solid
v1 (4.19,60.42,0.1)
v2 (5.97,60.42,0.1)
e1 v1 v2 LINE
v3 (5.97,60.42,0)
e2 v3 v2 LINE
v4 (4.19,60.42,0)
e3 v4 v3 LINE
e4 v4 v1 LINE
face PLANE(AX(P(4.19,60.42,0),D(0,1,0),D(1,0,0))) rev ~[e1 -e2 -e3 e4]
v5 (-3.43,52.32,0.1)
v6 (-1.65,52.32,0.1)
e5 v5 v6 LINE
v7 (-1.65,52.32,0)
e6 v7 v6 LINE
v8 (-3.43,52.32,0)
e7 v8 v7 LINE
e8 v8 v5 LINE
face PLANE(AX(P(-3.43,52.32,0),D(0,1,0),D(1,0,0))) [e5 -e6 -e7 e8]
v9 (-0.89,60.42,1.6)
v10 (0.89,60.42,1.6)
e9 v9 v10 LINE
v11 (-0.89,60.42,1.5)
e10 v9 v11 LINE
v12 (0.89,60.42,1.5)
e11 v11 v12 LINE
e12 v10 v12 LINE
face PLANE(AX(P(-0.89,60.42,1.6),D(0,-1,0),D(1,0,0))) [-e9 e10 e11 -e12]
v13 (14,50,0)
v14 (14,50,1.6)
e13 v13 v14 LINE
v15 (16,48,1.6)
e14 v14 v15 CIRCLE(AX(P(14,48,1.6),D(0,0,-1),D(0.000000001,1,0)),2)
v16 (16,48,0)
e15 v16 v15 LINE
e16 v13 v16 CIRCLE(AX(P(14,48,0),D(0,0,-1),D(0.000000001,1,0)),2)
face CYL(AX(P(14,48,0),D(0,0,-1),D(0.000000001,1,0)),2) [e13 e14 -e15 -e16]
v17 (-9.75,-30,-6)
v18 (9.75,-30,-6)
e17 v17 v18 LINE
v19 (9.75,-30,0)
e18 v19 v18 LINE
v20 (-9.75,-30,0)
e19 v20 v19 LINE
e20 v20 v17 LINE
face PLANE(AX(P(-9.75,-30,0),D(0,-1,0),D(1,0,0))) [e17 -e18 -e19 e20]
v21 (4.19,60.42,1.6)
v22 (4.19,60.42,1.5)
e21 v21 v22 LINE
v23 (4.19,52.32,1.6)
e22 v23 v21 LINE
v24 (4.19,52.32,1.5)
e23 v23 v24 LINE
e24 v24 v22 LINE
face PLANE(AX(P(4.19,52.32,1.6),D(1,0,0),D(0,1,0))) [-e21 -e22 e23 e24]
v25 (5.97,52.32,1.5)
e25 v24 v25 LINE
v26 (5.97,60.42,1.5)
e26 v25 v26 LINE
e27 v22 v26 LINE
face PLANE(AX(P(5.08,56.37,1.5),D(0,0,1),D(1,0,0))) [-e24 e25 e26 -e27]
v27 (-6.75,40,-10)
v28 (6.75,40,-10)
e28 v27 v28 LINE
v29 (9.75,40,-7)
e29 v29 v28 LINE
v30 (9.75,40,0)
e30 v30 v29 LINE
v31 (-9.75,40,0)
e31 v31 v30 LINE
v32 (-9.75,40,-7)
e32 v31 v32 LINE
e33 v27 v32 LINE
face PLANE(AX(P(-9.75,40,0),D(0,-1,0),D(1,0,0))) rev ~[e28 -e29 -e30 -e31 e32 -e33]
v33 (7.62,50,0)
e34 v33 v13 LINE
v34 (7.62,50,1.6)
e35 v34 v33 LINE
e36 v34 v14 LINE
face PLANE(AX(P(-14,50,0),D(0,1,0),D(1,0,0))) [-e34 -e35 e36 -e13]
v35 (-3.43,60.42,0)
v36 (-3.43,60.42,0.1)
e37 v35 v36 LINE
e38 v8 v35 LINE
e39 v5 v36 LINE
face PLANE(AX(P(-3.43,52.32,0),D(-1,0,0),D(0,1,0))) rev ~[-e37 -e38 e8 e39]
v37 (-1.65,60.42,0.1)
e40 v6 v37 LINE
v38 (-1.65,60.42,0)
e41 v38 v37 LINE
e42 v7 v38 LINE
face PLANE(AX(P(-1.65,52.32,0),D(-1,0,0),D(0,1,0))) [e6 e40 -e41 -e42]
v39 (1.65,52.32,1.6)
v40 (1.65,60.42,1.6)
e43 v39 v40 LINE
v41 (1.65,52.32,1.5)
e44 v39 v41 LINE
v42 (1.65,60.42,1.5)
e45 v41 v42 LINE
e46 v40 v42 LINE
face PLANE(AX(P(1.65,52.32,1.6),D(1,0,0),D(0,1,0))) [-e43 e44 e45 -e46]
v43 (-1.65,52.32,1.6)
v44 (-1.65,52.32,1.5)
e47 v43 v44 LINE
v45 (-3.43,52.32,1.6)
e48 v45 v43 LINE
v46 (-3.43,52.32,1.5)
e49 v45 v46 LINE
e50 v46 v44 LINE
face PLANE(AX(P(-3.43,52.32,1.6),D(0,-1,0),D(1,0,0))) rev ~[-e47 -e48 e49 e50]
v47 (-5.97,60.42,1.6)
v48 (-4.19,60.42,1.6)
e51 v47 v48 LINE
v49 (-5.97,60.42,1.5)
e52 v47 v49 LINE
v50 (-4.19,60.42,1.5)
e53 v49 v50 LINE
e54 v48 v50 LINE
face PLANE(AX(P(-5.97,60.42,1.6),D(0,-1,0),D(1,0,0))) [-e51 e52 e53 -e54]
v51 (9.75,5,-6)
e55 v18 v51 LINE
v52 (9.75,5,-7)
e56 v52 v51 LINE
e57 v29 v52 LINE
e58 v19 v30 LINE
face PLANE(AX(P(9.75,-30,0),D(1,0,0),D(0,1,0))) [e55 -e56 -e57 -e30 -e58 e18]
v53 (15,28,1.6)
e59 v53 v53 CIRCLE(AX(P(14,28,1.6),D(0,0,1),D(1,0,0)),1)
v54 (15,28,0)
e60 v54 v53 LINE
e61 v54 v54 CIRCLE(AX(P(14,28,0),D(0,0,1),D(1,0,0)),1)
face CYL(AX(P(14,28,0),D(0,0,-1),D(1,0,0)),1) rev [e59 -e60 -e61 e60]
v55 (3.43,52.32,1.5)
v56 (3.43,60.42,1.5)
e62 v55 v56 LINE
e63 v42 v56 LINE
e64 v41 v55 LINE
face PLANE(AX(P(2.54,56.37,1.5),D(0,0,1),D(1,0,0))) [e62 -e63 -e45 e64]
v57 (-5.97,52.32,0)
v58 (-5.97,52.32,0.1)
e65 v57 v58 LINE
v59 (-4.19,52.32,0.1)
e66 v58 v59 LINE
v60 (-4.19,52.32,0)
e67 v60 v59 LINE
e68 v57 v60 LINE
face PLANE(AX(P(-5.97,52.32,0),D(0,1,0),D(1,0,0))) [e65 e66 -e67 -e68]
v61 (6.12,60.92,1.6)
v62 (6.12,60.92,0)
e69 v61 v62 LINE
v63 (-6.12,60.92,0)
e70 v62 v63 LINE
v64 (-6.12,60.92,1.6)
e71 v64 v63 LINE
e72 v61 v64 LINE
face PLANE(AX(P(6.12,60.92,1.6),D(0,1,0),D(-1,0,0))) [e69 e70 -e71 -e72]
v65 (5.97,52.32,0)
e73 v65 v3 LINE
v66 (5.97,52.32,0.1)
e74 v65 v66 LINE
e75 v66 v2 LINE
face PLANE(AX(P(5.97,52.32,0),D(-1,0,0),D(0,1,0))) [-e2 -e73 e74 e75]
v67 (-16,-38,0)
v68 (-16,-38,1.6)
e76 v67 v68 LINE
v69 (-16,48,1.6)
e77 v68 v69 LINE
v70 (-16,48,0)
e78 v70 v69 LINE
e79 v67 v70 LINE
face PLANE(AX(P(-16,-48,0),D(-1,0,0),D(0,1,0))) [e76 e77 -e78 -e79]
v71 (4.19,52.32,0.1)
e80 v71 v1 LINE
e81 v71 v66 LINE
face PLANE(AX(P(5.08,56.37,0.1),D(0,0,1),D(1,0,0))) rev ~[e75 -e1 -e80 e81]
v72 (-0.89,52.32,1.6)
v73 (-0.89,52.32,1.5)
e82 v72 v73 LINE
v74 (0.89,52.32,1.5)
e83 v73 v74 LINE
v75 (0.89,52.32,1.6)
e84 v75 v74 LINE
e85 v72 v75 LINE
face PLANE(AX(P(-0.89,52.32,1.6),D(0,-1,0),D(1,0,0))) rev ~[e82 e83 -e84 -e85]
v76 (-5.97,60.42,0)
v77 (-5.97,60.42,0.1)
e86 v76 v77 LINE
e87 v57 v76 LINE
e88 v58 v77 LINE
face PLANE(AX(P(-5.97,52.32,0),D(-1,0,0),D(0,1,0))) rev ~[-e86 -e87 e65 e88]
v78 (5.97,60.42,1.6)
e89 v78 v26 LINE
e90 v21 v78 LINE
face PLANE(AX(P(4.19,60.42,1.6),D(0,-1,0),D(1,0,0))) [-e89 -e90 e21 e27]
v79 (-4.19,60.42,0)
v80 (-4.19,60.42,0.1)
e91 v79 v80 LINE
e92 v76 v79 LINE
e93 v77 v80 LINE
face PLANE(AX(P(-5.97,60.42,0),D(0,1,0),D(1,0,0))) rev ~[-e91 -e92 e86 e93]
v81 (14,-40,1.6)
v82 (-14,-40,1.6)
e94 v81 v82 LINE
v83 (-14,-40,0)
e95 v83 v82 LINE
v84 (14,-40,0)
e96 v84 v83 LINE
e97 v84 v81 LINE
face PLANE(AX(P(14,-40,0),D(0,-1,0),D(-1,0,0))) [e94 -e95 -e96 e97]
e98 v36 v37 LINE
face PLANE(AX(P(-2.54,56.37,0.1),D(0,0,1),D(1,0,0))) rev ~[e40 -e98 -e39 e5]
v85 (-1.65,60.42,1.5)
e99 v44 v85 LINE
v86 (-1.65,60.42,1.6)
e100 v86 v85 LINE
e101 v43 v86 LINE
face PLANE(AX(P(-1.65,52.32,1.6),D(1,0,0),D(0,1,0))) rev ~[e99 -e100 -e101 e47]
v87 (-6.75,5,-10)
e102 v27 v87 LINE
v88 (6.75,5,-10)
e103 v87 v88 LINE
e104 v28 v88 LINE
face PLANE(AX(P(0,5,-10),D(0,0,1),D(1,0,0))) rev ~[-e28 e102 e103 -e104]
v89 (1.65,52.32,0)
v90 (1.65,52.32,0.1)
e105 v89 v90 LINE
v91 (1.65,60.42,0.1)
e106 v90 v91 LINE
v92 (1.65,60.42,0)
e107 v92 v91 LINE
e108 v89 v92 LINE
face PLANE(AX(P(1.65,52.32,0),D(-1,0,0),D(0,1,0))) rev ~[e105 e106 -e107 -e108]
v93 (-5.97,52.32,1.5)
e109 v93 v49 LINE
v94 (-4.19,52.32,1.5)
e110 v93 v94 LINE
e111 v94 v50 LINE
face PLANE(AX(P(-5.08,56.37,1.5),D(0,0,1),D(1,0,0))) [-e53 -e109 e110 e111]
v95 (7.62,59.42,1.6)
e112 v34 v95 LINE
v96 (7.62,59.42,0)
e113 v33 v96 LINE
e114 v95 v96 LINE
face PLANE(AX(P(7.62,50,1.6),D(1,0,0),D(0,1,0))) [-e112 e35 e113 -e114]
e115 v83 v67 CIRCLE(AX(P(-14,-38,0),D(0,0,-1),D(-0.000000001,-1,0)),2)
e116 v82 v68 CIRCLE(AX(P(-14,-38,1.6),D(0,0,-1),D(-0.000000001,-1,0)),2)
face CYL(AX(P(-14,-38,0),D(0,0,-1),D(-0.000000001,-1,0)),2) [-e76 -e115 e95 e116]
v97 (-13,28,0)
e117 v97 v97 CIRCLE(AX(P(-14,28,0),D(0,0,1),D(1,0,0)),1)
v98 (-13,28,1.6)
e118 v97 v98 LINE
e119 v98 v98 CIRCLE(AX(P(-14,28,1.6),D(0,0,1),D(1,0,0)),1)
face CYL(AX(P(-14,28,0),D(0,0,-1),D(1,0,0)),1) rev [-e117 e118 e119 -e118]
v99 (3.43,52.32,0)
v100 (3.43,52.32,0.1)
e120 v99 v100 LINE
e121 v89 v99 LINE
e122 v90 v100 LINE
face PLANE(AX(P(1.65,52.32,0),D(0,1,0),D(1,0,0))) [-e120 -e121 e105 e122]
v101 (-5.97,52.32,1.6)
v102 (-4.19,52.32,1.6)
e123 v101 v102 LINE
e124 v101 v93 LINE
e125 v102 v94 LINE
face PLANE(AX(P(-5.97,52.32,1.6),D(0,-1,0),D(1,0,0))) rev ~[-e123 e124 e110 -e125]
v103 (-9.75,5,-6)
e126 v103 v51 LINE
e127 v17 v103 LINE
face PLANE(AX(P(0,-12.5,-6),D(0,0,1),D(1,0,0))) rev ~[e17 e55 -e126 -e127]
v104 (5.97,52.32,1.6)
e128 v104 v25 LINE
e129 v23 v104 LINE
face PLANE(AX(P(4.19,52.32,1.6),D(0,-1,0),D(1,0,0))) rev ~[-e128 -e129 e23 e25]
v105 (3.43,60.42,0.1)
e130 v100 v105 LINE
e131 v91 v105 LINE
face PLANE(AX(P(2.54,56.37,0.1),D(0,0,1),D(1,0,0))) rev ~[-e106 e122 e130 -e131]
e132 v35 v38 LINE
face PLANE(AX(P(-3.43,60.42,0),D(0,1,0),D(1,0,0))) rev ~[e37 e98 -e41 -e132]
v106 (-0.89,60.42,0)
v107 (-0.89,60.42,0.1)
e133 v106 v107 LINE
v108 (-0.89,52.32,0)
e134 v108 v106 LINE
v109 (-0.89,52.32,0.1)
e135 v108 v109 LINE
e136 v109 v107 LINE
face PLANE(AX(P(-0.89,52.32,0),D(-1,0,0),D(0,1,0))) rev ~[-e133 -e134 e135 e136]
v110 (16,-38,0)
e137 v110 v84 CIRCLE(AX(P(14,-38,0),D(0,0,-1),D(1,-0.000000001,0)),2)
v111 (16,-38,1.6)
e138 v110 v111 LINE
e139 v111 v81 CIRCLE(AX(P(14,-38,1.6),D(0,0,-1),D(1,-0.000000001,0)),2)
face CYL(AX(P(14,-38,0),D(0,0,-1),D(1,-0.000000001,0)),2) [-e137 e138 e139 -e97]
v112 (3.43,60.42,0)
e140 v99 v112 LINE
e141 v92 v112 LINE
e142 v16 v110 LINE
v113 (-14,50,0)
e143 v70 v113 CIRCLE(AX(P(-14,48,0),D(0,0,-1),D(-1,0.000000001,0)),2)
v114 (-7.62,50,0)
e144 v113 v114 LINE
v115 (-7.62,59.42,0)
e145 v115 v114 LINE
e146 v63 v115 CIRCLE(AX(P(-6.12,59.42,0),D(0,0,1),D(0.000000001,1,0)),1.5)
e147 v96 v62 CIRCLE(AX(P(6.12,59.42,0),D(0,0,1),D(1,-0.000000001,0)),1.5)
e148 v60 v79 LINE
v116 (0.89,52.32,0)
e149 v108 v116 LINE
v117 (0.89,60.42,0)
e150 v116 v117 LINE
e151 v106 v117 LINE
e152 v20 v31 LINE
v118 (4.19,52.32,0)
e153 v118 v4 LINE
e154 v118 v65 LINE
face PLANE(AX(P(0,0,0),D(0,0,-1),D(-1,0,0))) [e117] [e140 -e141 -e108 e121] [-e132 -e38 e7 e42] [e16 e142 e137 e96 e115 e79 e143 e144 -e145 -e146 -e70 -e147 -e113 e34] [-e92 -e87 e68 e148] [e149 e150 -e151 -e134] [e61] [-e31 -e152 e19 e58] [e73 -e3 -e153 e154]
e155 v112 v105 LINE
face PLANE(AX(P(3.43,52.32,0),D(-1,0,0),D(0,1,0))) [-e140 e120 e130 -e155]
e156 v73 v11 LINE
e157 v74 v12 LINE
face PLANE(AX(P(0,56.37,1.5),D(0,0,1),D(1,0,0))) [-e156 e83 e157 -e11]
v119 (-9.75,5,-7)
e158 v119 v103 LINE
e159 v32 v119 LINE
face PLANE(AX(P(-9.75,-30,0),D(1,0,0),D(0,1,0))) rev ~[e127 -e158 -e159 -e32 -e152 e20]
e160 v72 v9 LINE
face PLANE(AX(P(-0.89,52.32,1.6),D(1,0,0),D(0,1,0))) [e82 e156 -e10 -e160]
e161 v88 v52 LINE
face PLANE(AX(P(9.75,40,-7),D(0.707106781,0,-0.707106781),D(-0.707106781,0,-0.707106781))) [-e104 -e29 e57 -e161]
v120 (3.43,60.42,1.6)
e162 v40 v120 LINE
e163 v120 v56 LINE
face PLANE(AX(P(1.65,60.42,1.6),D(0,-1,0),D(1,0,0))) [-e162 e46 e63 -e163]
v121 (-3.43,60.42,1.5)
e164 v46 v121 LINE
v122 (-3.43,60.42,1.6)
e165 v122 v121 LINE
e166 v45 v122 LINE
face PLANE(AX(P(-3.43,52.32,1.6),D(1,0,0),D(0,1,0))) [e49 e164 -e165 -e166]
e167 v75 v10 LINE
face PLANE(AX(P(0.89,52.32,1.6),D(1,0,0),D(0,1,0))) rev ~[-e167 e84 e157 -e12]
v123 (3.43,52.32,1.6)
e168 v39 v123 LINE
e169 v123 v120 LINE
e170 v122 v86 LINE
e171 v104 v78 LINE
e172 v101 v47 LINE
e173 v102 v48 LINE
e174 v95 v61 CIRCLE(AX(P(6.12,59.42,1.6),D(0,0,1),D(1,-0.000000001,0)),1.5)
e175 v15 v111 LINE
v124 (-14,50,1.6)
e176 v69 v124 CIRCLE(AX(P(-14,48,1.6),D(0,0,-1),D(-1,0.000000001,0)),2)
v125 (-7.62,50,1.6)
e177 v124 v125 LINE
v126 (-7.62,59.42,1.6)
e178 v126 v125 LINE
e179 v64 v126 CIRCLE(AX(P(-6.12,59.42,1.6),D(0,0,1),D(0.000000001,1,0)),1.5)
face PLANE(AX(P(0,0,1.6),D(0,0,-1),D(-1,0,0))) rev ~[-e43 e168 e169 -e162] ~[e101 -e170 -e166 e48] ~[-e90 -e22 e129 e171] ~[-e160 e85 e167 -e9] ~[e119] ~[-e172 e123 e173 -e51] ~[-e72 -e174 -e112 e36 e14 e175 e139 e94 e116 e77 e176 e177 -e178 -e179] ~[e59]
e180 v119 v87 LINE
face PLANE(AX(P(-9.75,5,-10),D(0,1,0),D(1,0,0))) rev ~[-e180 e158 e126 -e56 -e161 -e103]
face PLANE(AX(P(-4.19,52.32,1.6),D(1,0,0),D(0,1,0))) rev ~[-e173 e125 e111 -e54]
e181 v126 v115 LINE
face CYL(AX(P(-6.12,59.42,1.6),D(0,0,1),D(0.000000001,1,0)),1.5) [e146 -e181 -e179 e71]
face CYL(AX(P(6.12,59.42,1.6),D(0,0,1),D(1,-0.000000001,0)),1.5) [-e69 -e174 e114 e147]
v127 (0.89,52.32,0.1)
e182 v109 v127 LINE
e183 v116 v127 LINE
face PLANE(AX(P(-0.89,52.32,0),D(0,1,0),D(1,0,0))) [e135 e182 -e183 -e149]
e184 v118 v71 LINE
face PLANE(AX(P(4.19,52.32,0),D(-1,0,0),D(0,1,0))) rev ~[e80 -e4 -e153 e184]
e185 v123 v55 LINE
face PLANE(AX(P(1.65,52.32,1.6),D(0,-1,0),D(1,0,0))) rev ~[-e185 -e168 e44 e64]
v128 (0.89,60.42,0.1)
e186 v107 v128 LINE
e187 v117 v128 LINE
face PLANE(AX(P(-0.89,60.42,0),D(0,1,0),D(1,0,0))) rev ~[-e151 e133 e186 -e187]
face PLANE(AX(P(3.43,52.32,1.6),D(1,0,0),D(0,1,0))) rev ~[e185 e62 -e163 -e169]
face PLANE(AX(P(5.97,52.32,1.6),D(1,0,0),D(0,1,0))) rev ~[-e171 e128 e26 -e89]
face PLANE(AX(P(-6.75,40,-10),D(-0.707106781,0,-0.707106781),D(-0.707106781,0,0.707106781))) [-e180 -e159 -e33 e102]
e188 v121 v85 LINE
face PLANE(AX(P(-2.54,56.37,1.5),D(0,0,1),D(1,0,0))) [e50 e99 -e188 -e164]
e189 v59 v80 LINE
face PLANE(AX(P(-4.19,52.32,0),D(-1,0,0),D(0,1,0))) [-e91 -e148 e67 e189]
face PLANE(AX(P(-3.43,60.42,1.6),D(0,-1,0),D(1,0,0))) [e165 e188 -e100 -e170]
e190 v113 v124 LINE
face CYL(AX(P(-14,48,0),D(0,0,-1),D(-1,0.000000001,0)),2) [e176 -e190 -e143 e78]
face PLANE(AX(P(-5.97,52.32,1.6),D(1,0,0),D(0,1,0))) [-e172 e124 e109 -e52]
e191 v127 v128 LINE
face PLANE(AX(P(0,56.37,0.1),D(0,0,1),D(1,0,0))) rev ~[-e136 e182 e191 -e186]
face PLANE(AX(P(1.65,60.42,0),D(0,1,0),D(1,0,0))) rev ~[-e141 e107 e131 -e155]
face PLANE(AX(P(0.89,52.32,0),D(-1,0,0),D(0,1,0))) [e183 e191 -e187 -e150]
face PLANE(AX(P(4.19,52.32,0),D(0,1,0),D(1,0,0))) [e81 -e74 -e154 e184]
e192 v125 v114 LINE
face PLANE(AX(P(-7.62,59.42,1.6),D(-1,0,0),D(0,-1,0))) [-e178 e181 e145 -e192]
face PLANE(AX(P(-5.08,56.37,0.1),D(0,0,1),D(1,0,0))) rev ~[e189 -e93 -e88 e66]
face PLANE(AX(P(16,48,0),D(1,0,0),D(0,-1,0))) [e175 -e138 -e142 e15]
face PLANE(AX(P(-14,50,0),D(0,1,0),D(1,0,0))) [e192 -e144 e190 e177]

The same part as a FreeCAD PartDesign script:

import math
import FreeCAD as App
import Part
import Sketcher

V = App.Vector
Q = App.Units.Quantity

doc = App.newDocument("Part")
body = doc.addObject("PartDesign::Body", "Body")

# Sketch on XY plane
sketch1 = body.newObject("Sketcher::SketchObject", "Sketch")
sketch1.AttachmentSupport = (doc.getObject("XY_Plane"), [""])
sketch1.MapMode = "FlatFace"
sketch1.addGeometry([
    Part.LineSegment(V(14, 50, 0), V(-14, 50, 0)),  # 0
    Part.ArcOfCircle(Part.Circle(V(-14, 48, 0), V(0, 0, 1), 2), math.radians(90), math.radians(180)),  # 1
    Part.LineSegment(V(-16, 48, 0), V(-16, -48, 0)),  # 2
    Part.ArcOfCircle(Part.Circle(V(-14, -48, 0), V(0, 0, 1), 2), math.radians(-180), math.radians(-90)),  # 3
    Part.LineSegment(V(-14, -50, 0), V(14, -50, 0)),  # 4
    Part.ArcOfCircle(Part.Circle(V(14, -48, 0), V(0, 0, 1), 2), math.radians(-90), math.radians(0)),  # 5
    Part.LineSegment(V(16, -48, 0), V(16, 48, 0)),  # 6
    Part.ArcOfCircle(Part.Circle(V(14, 48, 0), V(0, 0, 1), 2), math.radians(0), math.radians(90)),  # 7
    Part.Circle(V(14, -48, 0), V(0, 0, 1), 1),  # 8
    Part.Circle(V(-14, -48, 0), V(0, 0, 1), 1),  # 9
], False)
sketch1.addConstraint([
    Sketcher.Constraint("Tangent", 0, 2, 1, 1),
    Sketcher.Constraint("Tangent", 1, 2, 2, 1),
    Sketcher.Constraint("Tangent", 2, 2, 3, 1),
    Sketcher.Constraint("Tangent", 3, 2, 4, 1),
    Sketcher.Constraint("Tangent", 4, 2, 5, 1),
    Sketcher.Constraint("Tangent", 5, 2, 6, 1),
    Sketcher.Constraint("Tangent", 6, 2, 7, 1),
    Sketcher.Constraint("Tangent", 7, 2, 0, 1),
    Sketcher.Constraint("Horizontal", 0),
    Sketcher.Constraint("Vertical", 2),
    Sketcher.Constraint("Horizontal", 4),
    Sketcher.Constraint("Vertical", 6),
    Sketcher.Constraint("Coincident", 8, 3, 5, 3),
    Sketcher.Constraint("Coincident", 9, 3, 3, 3),
    Sketcher.Constraint("Equal", 1, 3),
    Sketcher.Constraint("Equal", 3, 5),
    Sketcher.Constraint("Equal", 5, 7),
    Sketcher.Constraint("Equal", 8, 9),
    Sketcher.Constraint("Symmetric", 1, 3, 5, 3, -1, 1),
    Sketcher.Constraint("Diameter", 8, Q("2 mm")),
    Sketcher.Constraint("Radius", 1, Q("2 mm")),
    Sketcher.Constraint("DistanceX", 0, 2, 0, 1, Q("28 mm")),
    Sketcher.Constraint("DistanceY", 2, 2, 2, 1, Q("96 mm")),
])
pad1 = body.newObject("PartDesign::Pad", "Pad")
pad1.Profile = sketch1
pad1.Length = 1.6

# Sketch on XY plane
sketch2 = body.newObject("Sketcher::SketchObject", "Sketch001")
sketch2.AttachmentSupport = (doc.getObject("XY_Plane"), [""])
sketch2.MapMode = "FlatFace"
sketch2.addGeometry([
    Part.Circle(V(-14, 28, 0), V(0, 0, 1), 1),
    Part.Circle(V(14, 28, 0), V(0, 0, 1), 1),
], False)
sketch2.addConstraint([
    Sketcher.Constraint("Equal", 0, 1),
    Sketcher.Constraint("Symmetric", 0, 3, 1, 3, -2),
    Sketcher.Constraint("Diameter", 0, Q("2 mm")),
    Sketcher.Constraint("DistanceX", 0, 3, -1, 1, Q("14 mm")),
    Sketcher.Constraint("DistanceY", -1, 1, 0, 3, Q("28 mm")),
])
pocket1 = body.newObject("PartDesign::Pocket", "Pocket")
pocket1.Profile = sketch2
pocket1.Length = 1.6
pocket1.Reversed = True

# Sketch on XY plane
sketch3 = body.newObject("Sketcher::SketchObject", "Sketch002")
sketch3.AttachmentSupport = (doc.getObject("XY_Plane"), [""])
sketch3.MapMode = "FlatFace"
sketch3.AttachmentOffset = App.Placement(V(0, 0, 1.6), App.Rotation())
sketch3.addGeometry([
    Part.LineSegment(V(-7.62, 50, 0), V(7.62, 50, 0)),  # 0
    Part.LineSegment(V(7.62, 50, 0), V(7.62, 59.42, 0)),  # 1
    Part.ArcOfCircle(Part.Circle(V(6.12, 59.42, 0), V(0, 0, 1), 1.5), math.radians(0), math.radians(90)),  # 2
    Part.LineSegment(V(6.12, 60.92, 0), V(-6.12, 60.92, 0)),  # 3
    Part.ArcOfCircle(Part.Circle(V(-6.12, 59.42, 0), V(0, 0, 1), 1.5), math.radians(90), math.radians(180)),  # 4
    Part.LineSegment(V(-7.62, 59.42, 0), V(-7.62, 50, 0)),  # 5
    Part.LineSegment(V(-7.62, -50, 0), V(-7.62, -59.42, 0)),  # 6
    Part.ArcOfCircle(Part.Circle(V(-6.12, -59.42, 0), V(0, 0, 1), 1.5), math.radians(180), math.radians(270)),  # 7
    Part.LineSegment(V(-6.12, -60.92, 0), V(6.12, -60.92, 0)),  # 8
    Part.ArcOfCircle(Part.Circle(V(6.12, -59.42, 0), V(0, 0, 1), 1.5), math.radians(-90), math.radians(0)),  # 9
    Part.LineSegment(V(7.62, -59.42, 0), V(7.62, -50, 0)),  # 10
    Part.LineSegment(V(7.62, -50, 0), V(-7.62, -50, 0)),  # 11
], False)
sketch3.addConstraint([
    Sketcher.Constraint("Coincident", 0, 2, 1, 1),
    Sketcher.Constraint("Tangent", 1, 2, 2, 1),
    Sketcher.Constraint("Tangent", 2, 2, 3, 1),
    Sketcher.Constraint("Tangent", 3, 2, 4, 1),
    Sketcher.Constraint("Tangent", 4, 2, 5, 1),
    Sketcher.Constraint("Coincident", 5, 2, 0, 1),
    Sketcher.Constraint("Tangent", 6, 2, 7, 1),
    Sketcher.Constraint("Tangent", 7, 2, 8, 1),
    Sketcher.Constraint("Tangent", 8, 2, 9, 1),
    Sketcher.Constraint("Tangent", 9, 2, 10, 1),
    Sketcher.Constraint("Coincident", 10, 2, 11, 1),
    Sketcher.Constraint("Coincident", 11, 2, 6, 1),
    Sketcher.Constraint("Horizontal", 0),
    Sketcher.Constraint("Vertical", 1),
    Sketcher.Constraint("Horizontal", 3),
    Sketcher.Constraint("Vertical", 5),
    Sketcher.Constraint("Vertical", 6),
    Sketcher.Constraint("Horizontal", 8),
    Sketcher.Constraint("Vertical", 10),
    Sketcher.Constraint("Horizontal", 11),
    Sketcher.Constraint("Equal", 2, 4),
    Sketcher.Constraint("Equal", 4, 7),
    Sketcher.Constraint("Equal", 7, 9),
    Sketcher.Constraint("Symmetric", 2, 3, 7, 3, -1, 1),
    Sketcher.Constraint("Symmetric", 5, 2, 10, 2, -1, 1),
    Sketcher.Constraint("Vertical", 4, 3, 7, 3),
    Sketcher.Constraint("Radius", 2, Q("1.5 mm")),
    Sketcher.Constraint("DistanceY", -1, 1, 0, 2, Q("50 mm")),
    Sketcher.Constraint("DistanceX", 0, 1, 0, 2, Q("15.24 mm")),
    Sketcher.Constraint("DistanceY", 1, 1, 1, 2, Q("9.42 mm")),
])
pad2 = body.newObject("PartDesign::Pad", "Pad001")
pad2.Profile = sketch3
pad2.Length = 1.6
pad2.Reversed = True

# Sketch on XY plane
sketch4 = body.newObject("Sketcher::SketchObject", "Sketch003")
sketch4.AttachmentSupport = (doc.getObject("XY_Plane"), [""])
sketch4.MapMode = "FlatFace"
sketch4.addGeometry([
    Part.LineSegment(V(-0.89, 60.42, 0), V(-0.89, 52.32, 0)),  # 0
    Part.LineSegment(V(-0.89, 52.32, 0), V(0.89, 52.32, 0)),  # 1
    Part.LineSegment(V(0.89, 52.32, 0), V(0.89, 60.42, 0)),  # 2
    Part.LineSegment(V(0.89, 60.42, 0), V(-0.89, 60.42, 0)),  # 3
    Part.LineSegment(V(1.65, 60.42, 0), V(1.65, 52.32, 0)),  # 4
    Part.LineSegment(V(1.65, 52.32, 0), V(3.43, 52.32, 0)),  # 5
    Part.LineSegment(V(3.43, 52.32, 0), V(3.43, 60.42, 0)),  # 6
    Part.LineSegment(V(3.43, 60.42, 0), V(1.65, 60.42, 0)),  # 7
    Part.LineSegment(V(4.19, 60.42, 0), V(4.19, 52.32, 0)),  # 8
    Part.LineSegment(V(4.19, 52.32, 0), V(5.97, 52.32, 0)),  # 9
    Part.LineSegment(V(5.97, 52.32, 0), V(5.97, 60.42, 0)),  # 10
    Part.LineSegment(V(5.97, 60.42, 0), V(4.19, 60.42, 0)),  # 11
    Part.LineSegment(V(-3.43, 60.42, 0), V(-3.43, 52.32, 0)),  # 12
    Part.LineSegment(V(-3.43, 52.32, 0), V(-1.65, 52.32, 0)),  # 13
    Part.LineSegment(V(-1.65, 52.32, 0), V(-1.65, 60.42, 0)),  # 14
    Part.LineSegment(V(-1.65, 60.42, 0), V(-3.43, 60.42, 0)),  # 15
    Part.LineSegment(V(-5.97, 60.42, 0), V(-5.97, 52.32, 0)),  # 16
    Part.LineSegment(V(-5.97, 52.32, 0), V(-4.19, 52.32, 0)),  # 17
    Part.LineSegment(V(-4.19, 52.32, 0), V(-4.19, 60.42, 0)),  # 18
    Part.LineSegment(V(-4.19, 60.42, 0), V(-5.97, 60.42, 0)),  # 19
    Part.LineSegment(V(-5.97, -52.32, 0), V(-5.97, -60.42, 0)),  # 20
    Part.LineSegment(V(-5.97, -60.42, 0), V(-4.19, -60.42, 0)),  # 21
    Part.LineSegment(V(-4.19, -60.42, 0), V(-4.19, -52.32, 0)),  # 22
    Part.LineSegment(V(-4.19, -52.32, 0), V(-5.97, -52.32, 0)),  # 23
    Part.LineSegment(V(-3.43, -52.32, 0), V(-3.43, -60.42, 0)),  # 24
    Part.LineSegment(V(-3.43, -60.42, 0), V(-1.65, -60.42, 0)),  # 25
    Part.LineSegment(V(-1.65, -60.42, 0), V(-1.65, -52.32, 0)),  # 26
    Part.LineSegment(V(-1.65, -52.32, 0), V(-3.43, -52.32, 0)),  # 27
    Part.LineSegment(V(4.19, -52.32, 0), V(4.19, -60.42, 0)),  # 28
    Part.LineSegment(V(4.19, -60.42, 0), V(5.97, -60.42, 0)),  # 29
    Part.LineSegment(V(5.97, -60.42, 0), V(5.97, -52.32, 0)),  # 30
    Part.LineSegment(V(5.97, -52.32, 0), V(4.19, -52.32, 0)),  # 31
    Part.LineSegment(V(1.65, -52.32, 0), V(1.65, -60.42, 0)),  # 32
    Part.LineSegment(V(1.65, -60.42, 0), V(3.43, -60.42, 0)),  # 33
    Part.LineSegment(V(3.43, -60.42, 0), V(3.43, -52.32, 0)),  # 34
    Part.LineSegment(V(3.43, -52.32, 0), V(1.65, -52.32, 0)),  # 35
    Part.LineSegment(V(-0.89, -52.32, 0), V(-0.89, -60.42, 0)),  # 36
    Part.LineSegment(V(-0.89, -60.42, 0), V(0.89, -60.42, 0)),  # 37
    Part.LineSegment(V(0.89, -60.42, 0), V(0.89, -52.32, 0)),  # 38
    Part.LineSegment(V(0.89, -52.32, 0), V(-0.89, -52.32, 0)),  # 39
], False)
sketch4.addConstraint([
    Sketcher.Constraint("Coincident", 0, 2, 1, 1),
    Sketcher.Constraint("Coincident", 1, 2, 2, 1),
    Sketcher.Constraint("Coincident", 2, 2, 3, 1),
    Sketcher.Constraint("Coincident", 3, 2, 0, 1),
    Sketcher.Constraint("Coincident", 4, 2, 5, 1),
    Sketcher.Constraint("Coincident", 5, 2, 6, 1),
    Sketcher.Constraint("Coincident", 6, 2, 7, 1),
    Sketcher.Constraint("Coincident", 7, 2, 4, 1),
    Sketcher.Constraint("Coincident", 8, 2, 9, 1),
    Sketcher.Constraint("Coincident", 9, 2, 10, 1),
    Sketcher.Constraint("Coincident", 10, 2, 11, 1),
    Sketcher.Constraint("Coincident", 11, 2, 8, 1),
    Sketcher.Constraint("Coincident", 12, 2, 13, 1),
    Sketcher.Constraint("Coincident", 13, 2, 14, 1),
    Sketcher.Constraint("Coincident", 14, 2, 15, 1),
    Sketcher.Constraint("Coincident", 15, 2, 12, 1),
    Sketcher.Constraint("Coincident", 16, 2, 17, 1),
    Sketcher.Constraint("Coincident", 17, 2, 18, 1),
    Sketcher.Constraint("Coincident", 18, 2, 19, 1),
    Sketcher.Constraint("Coincident", 19, 2, 16, 1),
    Sketcher.Constraint("Coincident", 20, 2, 21, 1),
    Sketcher.Constraint("Coincident", 21, 2, 22, 1),
    Sketcher.Constraint("Coincident", 22, 2, 23, 1),
    Sketcher.Constraint("Coincident", 23, 2, 20, 1),
    Sketcher.Constraint("Coincident", 24, 2, 25, 1),
    Sketcher.Constraint("Coincident", 25, 2, 26, 1),
    Sketcher.Constraint("Coincident", 26, 2, 27, 1),
    Sketcher.Constraint("Coincident", 27, 2, 24, 1),
    Sketcher.Constraint("Coincident", 28, 2, 29, 1),
    Sketcher.Constraint("Coincident", 29, 2, 30, 1),
    Sketcher.Constraint("Coincident", 30, 2, 31, 1),
    Sketcher.Constraint("Coincident", 31, 2, 28, 1),
    Sketcher.Constraint("Coincident", 32, 2, 33, 1),
    Sketcher.Constraint("Coincident", 33, 2, 34, 1),
    Sketcher.Constraint("Coincident", 34, 2, 35, 1),
    Sketcher.Constraint("Coincident", 35, 2, 32, 1),
    Sketcher.Constraint("Coincident", 36, 2, 37, 1),
    Sketcher.Constraint("Coincident", 37, 2, 38, 1),
    Sketcher.Constraint("Coincident", 38, 2, 39, 1),
    Sketcher.Constraint("Coincident", 39, 2, 36, 1),
    Sketcher.Constraint("Vertical", 0),
    Sketcher.Constraint("Horizontal", 1),
    Sketcher.Constraint("Vertical", 2),
    Sketcher.Constraint("Horizontal", 3),
    Sketcher.Constraint("Vertical", 4),
    Sketcher.Constraint("Horizontal", 5),
    Sketcher.Constraint("Vertical", 6),
    Sketcher.Constraint("Horizontal", 7),
    Sketcher.Constraint("Vertical", 8),
    Sketcher.Constraint("Horizontal", 9),
    Sketcher.Constraint("Vertical", 10),
    Sketcher.Constraint("Horizontal", 11),
    Sketcher.Constraint("Vertical", 12),
    Sketcher.Constraint("Horizontal", 13),
    Sketcher.Constraint("Vertical", 14),
    Sketcher.Constraint("Horizontal", 15),
    Sketcher.Constraint("Vertical", 16),
    Sketcher.Constraint("Horizontal", 17),
    Sketcher.Constraint("Vertical", 18),
    Sketcher.Constraint("Horizontal", 19),
    Sketcher.Constraint("Vertical", 20),
    Sketcher.Constraint("Horizontal", 21),
    Sketcher.Constraint("Vertical", 22),
    Sketcher.Constraint("Horizontal", 23),
    Sketcher.Constraint("Vertical", 24),
    Sketcher.Constraint("Horizontal", 25),
    Sketcher.Constraint("Vertical", 26),
    Sketcher.Constraint("Horizontal", 27),
    Sketcher.Constraint("Vertical", 28),
    Sketcher.Constraint("Horizontal", 29),
    Sketcher.Constraint("Vertical", 30),
    Sketcher.Constraint("Horizontal", 31),
    Sketcher.Constraint("Vertical", 32),
    Sketcher.Constraint("Horizontal", 33),
    Sketcher.Constraint("Vertical", 34),
    Sketcher.Constraint("Horizontal", 35),
    Sketcher.Constraint("Vertical", 36),
    Sketcher.Constraint("Horizontal", 37),
    Sketcher.Constraint("Vertical", 38),
    Sketcher.Constraint("Horizontal", 39),
    Sketcher.Constraint("Symmetric", 10, 2, 20, 2, -1, 1),
    Sketcher.Constraint("Symmetric", 8, 2, 22, 2, -1, 1),
    Sketcher.Constraint("Symmetric", 6, 2, 24, 2, -1, 1),
    Sketcher.Constraint("Symmetric", 4, 2, 26, 2, -1, 1),
    Sketcher.Constraint("Symmetric", 18, 2, 28, 2, -1, 1),
    Sketcher.Constraint("Symmetric", 16, 2, 30, 2, -1, 1),
    Sketcher.Constraint("Symmetric", 14, 2, 32, 2, -1, 1),
    Sketcher.Constraint("Symmetric", 12, 2, 34, 2, -1, 1),
    Sketcher.Constraint("Symmetric", 2, 2, 36, 2, -1, 1),
    Sketcher.Constraint("Symmetric", 0, 2, 38, 2, -1, 1),
    Sketcher.Constraint("Symmetric", 5, 2, 12, 2, -2),
    Sketcher.Constraint("Symmetric", 7, 2, 14, 2, -2),
    Sketcher.Constraint("Symmetric", 9, 2, 16, 2, -2),
    Sketcher.Constraint("Symmetric", 11, 2, 18, 2, -2),
    Sketcher.Constraint("Horizontal", 1, 2, 4, 2),
    Sketcher.Constraint("Horizontal", 3, 2, 6, 2),
    Sketcher.Constraint("Horizontal", 5, 2, 8, 2),
    Sketcher.Constraint("Horizontal", 7, 2, 10, 2),
    Sketcher.Constraint("Vertical", 3, 2, 36, 2),
    Sketcher.Constraint("Equal", 3, 5),
    Sketcher.Constraint("Equal", 7, 9),
    Sketcher.Constraint("DistanceY", 0, 2, 0, 1, Q("8.1 mm")),
    Sketcher.Constraint("DistanceX", 1, 1, 1, 2, Q("1.78 mm")),
    Sketcher.Constraint("DistanceX", 1, 2, 8, 2, Q("3.3 mm")),
    Sketcher.Constraint("DistanceX", 13, 2, 4, 2, Q("3.3 mm")),
    Sketcher.Constraint("DistanceY", -1, 1, 0, 2, Q("52.32 mm")),
])
pocket2 = body.newObject("PartDesign::Pocket", "Pocket001")
pocket2.Profile = sketch4
pocket2.Length = 0.1
pocket2.Reversed = True

# Sketch on XY plane
sketch5 = body.newObject("Sketcher::SketchObject", "Sketch004")
sketch5.AttachmentSupport = (doc.getObject("XY_Plane"), [""])
sketch5.MapMode = "FlatFace"
sketch5.AttachmentOffset = App.Placement(V(0, 0, 1.6), App.Rotation())
sketch5.addGeometry([
    Part.LineSegment(V(1.65, 60.42, 0), V(1.65, 52.32, 0)),  # 0
    Part.LineSegment(V(1.65, 52.32, 0), V(3.43, 52.32, 0)),  # 1
    Part.LineSegment(V(3.43, 52.32, 0), V(3.43, 60.42, 0)),  # 2
    Part.LineSegment(V(3.43, 60.42, 0), V(1.65, 60.42, 0)),  # 3
    Part.LineSegment(V(-0.89, 60.42, 0), V(-0.89, 52.32, 0)),  # 4
    Part.LineSegment(V(-0.89, 52.32, 0), V(0.89, 52.32, 0)),  # 5
    Part.LineSegment(V(0.89, 52.32, 0), V(0.89, 60.42, 0)),  # 6
    Part.LineSegment(V(0.89, 60.42, 0), V(-0.89, 60.42, 0)),  # 7
    Part.LineSegment(V(-5.97, 60.42, 0), V(-5.97, 52.32, 0)),  # 8
    Part.LineSegment(V(-5.97, 52.32, 0), V(-4.19, 52.32, 0)),  # 9
    Part.LineSegment(V(-4.19, 52.32, 0), V(-4.19, 60.42, 0)),  # 10
    Part.LineSegment(V(-4.19, 60.42, 0), V(-5.97, 60.42, 0)),  # 11
    Part.LineSegment(V(-3.43, 60.42, 0), V(-3.43, 52.32, 0)),  # 12
    Part.LineSegment(V(-3.43, 52.32, 0), V(-1.65, 52.32, 0)),  # 13
    Part.LineSegment(V(-1.65, 52.32, 0), V(-1.65, 60.42, 0)),  # 14
    Part.LineSegment(V(-1.65, 60.42, 0), V(-3.43, 60.42, 0)),  # 15
    Part.LineSegment(V(4.19, 60.42, 0), V(4.19, 52.32, 0)),  # 16
    Part.LineSegment(V(4.19, 52.32, 0), V(5.97, 52.32, 0)),  # 17
    Part.LineSegment(V(5.97, 52.32, 0), V(5.97, 60.42, 0)),  # 18
    Part.LineSegment(V(5.97, 60.42, 0), V(4.19, 60.42, 0)),  # 19
    Part.LineSegment(V(1.65, -52.32, 0), V(1.65, -60.42, 0)),  # 20
    Part.LineSegment(V(1.65, -60.42, 0), V(3.43, -60.42, 0)),  # 21
    Part.LineSegment(V(3.43, -60.42, 0), V(3.43, -52.32, 0)),  # 22
    Part.LineSegment(V(3.43, -52.32, 0), V(1.65, -52.32, 0)),  # 23
    Part.LineSegment(V(4.19, -52.32, 0), V(4.19, -60.42, 0)),  # 24
    Part.LineSegment(V(4.19, -60.42, 0), V(5.97, -60.42, 0)),  # 25
    Part.LineSegment(V(5.97, -60.42, 0), V(5.97, -52.32, 0)),  # 26
    Part.LineSegment(V(5.97, -52.32, 0), V(4.19, -52.32, 0)),  # 27
    Part.LineSegment(V(-3.43, -52.32, 0), V(-3.43, -60.42, 0)),  # 28
    Part.LineSegment(V(-3.43, -60.42, 0), V(-1.65, -60.42, 0)),  # 29
    Part.LineSegment(V(-1.65, -60.42, 0), V(-1.65, -52.32, 0)),  # 30
    Part.LineSegment(V(-1.65, -52.32, 0), V(-3.43, -52.32, 0)),  # 31
    Part.LineSegment(V(-5.97, -52.32, 0), V(-5.97, -60.42, 0)),  # 32
    Part.LineSegment(V(-5.97, -60.42, 0), V(-4.19, -60.42, 0)),  # 33
    Part.LineSegment(V(-4.19, -60.42, 0), V(-4.19, -52.32, 0)),  # 34
    Part.LineSegment(V(-4.19, -52.32, 0), V(-5.97, -52.32, 0)),  # 35
    Part.LineSegment(V(-0.89, -52.32, 0), V(-0.89, -60.42, 0)),  # 36
    Part.LineSegment(V(-0.89, -60.42, 0), V(0.89, -60.42, 0)),  # 37
    Part.LineSegment(V(0.89, -60.42, 0), V(0.89, -52.32, 0)),  # 38
    Part.LineSegment(V(0.89, -52.32, 0), V(-0.89, -52.32, 0)),  # 39
], False)
sketch5.addConstraint([
    Sketcher.Constraint("Coincident", 0, 2, 1, 1),
    Sketcher.Constraint("Coincident", 1, 2, 2, 1),
    Sketcher.Constraint("Coincident", 2, 2, 3, 1),
    Sketcher.Constraint("Coincident", 3, 2, 0, 1),
    Sketcher.Constraint("Coincident", 4, 2, 5, 1),
    Sketcher.Constraint("Coincident", 5, 2, 6, 1),
    Sketcher.Constraint("Coincident", 6, 2, 7, 1),
    Sketcher.Constraint("Coincident", 7, 2, 4, 1),
    Sketcher.Constraint("Coincident", 8, 2, 9, 1),
    Sketcher.Constraint("Coincident", 9, 2, 10, 1),
    Sketcher.Constraint("Coincident", 10, 2, 11, 1),
    Sketcher.Constraint("Coincident", 11, 2, 8, 1),
    Sketcher.Constraint("Coincident", 12, 2, 13, 1),
    Sketcher.Constraint("Coincident", 13, 2, 14, 1),
    Sketcher.Constraint("Coincident", 14, 2, 15, 1),
    Sketcher.Constraint("Coincident", 15, 2, 12, 1),
    Sketcher.Constraint("Coincident", 16, 2, 17, 1),
    Sketcher.Constraint("Coincident", 17, 2, 18, 1),
    Sketcher.Constraint("Coincident", 18, 2, 19, 1),
    Sketcher.Constraint("Coincident", 19, 2, 16, 1),
    Sketcher.Constraint("Coincident", 20, 2, 21, 1),
    Sketcher.Constraint("Coincident", 21, 2, 22, 1),
    Sketcher.Constraint("Coincident", 22, 2, 23, 1),
    Sketcher.Constraint("Coincident", 23, 2, 20, 1),
    Sketcher.Constraint("Coincident", 24, 2, 25, 1),
    Sketcher.Constraint("Coincident", 25, 2, 26, 1),
    Sketcher.Constraint("Coincident", 26, 2, 27, 1),
    Sketcher.Constraint("Coincident", 27, 2, 24, 1),
    Sketcher.Constraint("Coincident", 28, 2, 29, 1),
    Sketcher.Constraint("Coincident", 29, 2, 30, 1),
    Sketcher.Constraint("Coincident", 30, 2, 31, 1),
    Sketcher.Constraint("Coincident", 31, 2, 28, 1),
    Sketcher.Constraint("Coincident", 32, 2, 33, 1),
    Sketcher.Constraint("Coincident", 33, 2, 34, 1),
    Sketcher.Constraint("Coincident", 34, 2, 35, 1),
    Sketcher.Constraint("Coincident", 35, 2, 32, 1),
    Sketcher.Constraint("Coincident", 36, 2, 37, 1),
    Sketcher.Constraint("Coincident", 37, 2, 38, 1),
    Sketcher.Constraint("Coincident", 38, 2, 39, 1),
    Sketcher.Constraint("Coincident", 39, 2, 36, 1),
    Sketcher.Constraint("Vertical", 0),
    Sketcher.Constraint("Horizontal", 1),
    Sketcher.Constraint("Vertical", 2),
    Sketcher.Constraint("Horizontal", 3),
    Sketcher.Constraint("Vertical", 4),
    Sketcher.Constraint("Horizontal", 5),
    Sketcher.Constraint("Vertical", 6),
    Sketcher.Constraint("Horizontal", 7),
    Sketcher.Constraint("Vertical", 8),
    Sketcher.Constraint("Horizontal", 9),
    Sketcher.Constraint("Vertical", 10),
    Sketcher.Constraint("Horizontal", 11),
    Sketcher.Constraint("Vertical", 12),
    Sketcher.Constraint("Horizontal", 13),
    Sketcher.Constraint("Vertical", 14),
    Sketcher.Constraint("Horizontal", 15),
    Sketcher.Constraint("Vertical", 16),
    Sketcher.Constraint("Horizontal", 17),
    Sketcher.Constraint("Vertical", 18),
    Sketcher.Constraint("Horizontal", 19),
    Sketcher.Constraint("Vertical", 20),
    Sketcher.Constraint("Horizontal", 21),
    Sketcher.Constraint("Vertical", 22),
    Sketcher.Constraint("Horizontal", 23),
    Sketcher.Constraint("Vertical", 24),
    Sketcher.Constraint("Horizontal", 25),
    Sketcher.Constraint("Vertical", 26),
    Sketcher.Constraint("Horizontal", 27),
    Sketcher.Constraint("Vertical", 28),
    Sketcher.Constraint("Horizontal", 29),
    Sketcher.Constraint("Vertical", 30),
    Sketcher.Constraint("Horizontal", 31),
    Sketcher.Constraint("Vertical", 32),
    Sketcher.Constraint("Horizontal", 33),
    Sketcher.Constraint("Vertical", 34),
    Sketcher.Constraint("Horizontal", 35),
    Sketcher.Constraint("Vertical", 36),
    Sketcher.Constraint("Horizontal", 37),
    Sketcher.Constraint("Vertical", 38),
    Sketcher.Constraint("Horizontal", 39),
    Sketcher.Constraint("Symmetric", 14, 2, 20, 2, -1, 1),
    Sketcher.Constraint("Symmetric", 12, 2, 22, 2, -1, 1),
    Sketcher.Constraint("Symmetric", 10, 2, 24, 2, -1, 1),
    Sketcher.Constraint("Symmetric", 8, 2, 26, 2, -1, 1),
    Sketcher.Constraint("Symmetric", 2, 2, 28, 2, -1, 1),
    Sketcher.Constraint("Symmetric", 0, 2, 30, 2, -1, 1),
    Sketcher.Constraint("Symmetric", 18, 2, 32, 2, -1, 1),
    Sketcher.Constraint("Symmetric", 16, 2, 34, 2, -1, 1),
    Sketcher.Constraint("Symmetric", 6, 2, 36, 2, -1, 1),
    Sketcher.Constraint("Symmetric", 4, 2, 38, 2, -1, 1),
    Sketcher.Constraint("Symmetric", 1, 2, 12, 2, -2),
    Sketcher.Constraint("Symmetric", 3, 2, 14, 2, -2),
    Sketcher.Constraint("Symmetric", 9, 2, 16, 2, -2),
    Sketcher.Constraint("Symmetric", 11, 2, 18, 2, -2),
    Sketcher.Constraint("Horizontal", 1, 2, 4, 2),
    Sketcher.Constraint("Horizontal", 3, 2, 6, 2),
    Sketcher.Constraint("Horizontal", 5, 2, 8, 2),
    Sketcher.Constraint("Horizontal", 7, 2, 10, 2),
    Sketcher.Constraint("Vertical", 7, 2, 36, 2),
    Sketcher.Constraint("Equal", 3, 5),
    Sketcher.Constraint("Equal", 7, 9),
    Sketcher.Constraint("DistanceY", 0, 2, 0, 1, Q("8.1 mm")),
    Sketcher.Constraint("DistanceX", 1, 1, 1, 2, Q("1.78 mm")),
    Sketcher.Constraint("DistanceX", 8, 2, 1, 2, Q("9.4 mm")),
    Sketcher.Constraint("DistanceX", 9, 2, 4, 2, Q("3.3 mm")),
    Sketcher.Constraint("DistanceY", -1, 1, 0, 2, Q("52.32 mm")),
])
pocket3 = body.newObject("PartDesign::Pocket", "Pocket002")
pocket3.Profile = sketch5
pocket3.Length = 0.1

# Sketch on XY plane
sketch6 = body.newObject("Sketcher::SketchObject", "Sketch005")
sketch6.AttachmentSupport = (doc.getObject("XY_Plane"), [""])
sketch6.MapMode = "FlatFace"
sketch6.addGeometry([
    Part.LineSegment(V(-9.75, 40, 0), V(-9.75, -30, 0)),
    Part.LineSegment(V(-9.75, -30, 0), V(9.75, -30, 0)),
    Part.LineSegment(V(9.75, -30, 0), V(9.75, 40, 0)),
    Part.LineSegment(V(9.75, 40, 0), V(-9.75, 40, 0)),
], False)
sketch6.addConstraint([
    Sketcher.Constraint("Coincident", 0, 2, 1, 1),
    Sketcher.Constraint("Coincident", 1, 2, 2, 1),
    Sketcher.Constraint("Coincident", 2, 2, 3, 1),
    Sketcher.Constraint("Coincident", 3, 2, 0, 1),
    Sketcher.Constraint("Vertical", 0),
    Sketcher.Constraint("Horizontal", 1),
    Sketcher.Constraint("Vertical", 2),
    Sketcher.Constraint("Horizontal", 3),
    Sketcher.Constraint("DistanceY", 0, 2, 0, 1, Q("70 mm")),
    Sketcher.Constraint("DistanceX", 1, 1, 1, 2, Q("19.5 mm")),
    Sketcher.Constraint("DistanceY", 0, 2, -1, 1, Q("30 mm")),
    Sketcher.Constraint("DistanceX", 0, 2, -1, 1, Q("9.75 mm")),
])
pad3 = body.newObject("PartDesign::Pad", "Pad002")
pad3.Profile = sketch6
pad3.Length = 10
pad3.Reversed = True

# Sketch on XZ plane
sketch7 = body.newObject("Sketcher::SketchObject", "Sketch006")
sketch7.AttachmentSupport = (doc.getObject("XZ_Plane"), [""])
sketch7.MapMode = "FlatFace"
sketch7.AttachmentOffset = App.Placement(V(0, 0, -40), App.Rotation())
sketch7.addGeometry([
    Part.LineSegment(V(9.75, -7, 0), V(9.75, -10, 0)),  # 0
    Part.LineSegment(V(9.75, -10, 0), V(6.75, -10, 0)),  # 1
    Part.LineSegment(V(6.75, -10, 0), V(9.75, -7, 0)),  # 2
    Part.LineSegment(V(-6.75, -10, 0), V(-9.75, -10, 0)),  # 3
    Part.LineSegment(V(-9.75, -10, 0), V(-9.75, -7, 0)),  # 4
    Part.LineSegment(V(-9.75, -7, 0), V(-6.75, -10, 0)),  # 5
], False)
sketch7.addConstraint([
    Sketcher.Constraint("Coincident", 0, 2, 1, 1),
    Sketcher.Constraint("Coincident", 1, 2, 2, 1),
    Sketcher.Constraint("Coincident", 2, 2, 0, 1),
    Sketcher.Constraint("Coincident", 3, 2, 4, 1),
    Sketcher.Constraint("Coincident", 4, 2, 5, 1),
    Sketcher.Constraint("Coincident", 5, 2, 3, 1),
    Sketcher.Constraint("Vertical", 0),
    Sketcher.Constraint("Horizontal", 1),
    Sketcher.Constraint("Horizontal", 3),
    Sketcher.Constraint("Vertical", 4),
    Sketcher.Constraint("Symmetric", 0, 2, 3, 2, -2),
    Sketcher.Constraint("Perpendicular", 2, 5),
    Sketcher.Constraint("Horizontal", 2, 2, 4, 2),
    Sketcher.Constraint("Equal", 1, 3),
    Sketcher.Constraint("DistanceX", 1, 2, 1, 1, Q("3 mm")),
    Sketcher.Constraint("DistanceY", 0, 2, -1, 1, Q("10 mm")),
    Sketcher.Constraint("DistanceX", 3, 2, 1, 2, Q("16.5 mm")),
])
pocket4 = body.newObject("PartDesign::Pocket", "Pocket003")
pocket4.Profile = sketch7
pocket4.Length = 70
pocket4.Reversed = True

# Sketch on XY plane
sketch8 = body.newObject("Sketcher::SketchObject", "Sketch007")
sketch8.AttachmentSupport = (doc.getObject("XY_Plane"), [""])
sketch8.MapMode = "FlatFace"
sketch8.AttachmentOffset = App.Placement(V(0, 0, -10), App.Rotation())
sketch8.addGeometry([
    Part.LineSegment(V(-9.75, 5, 0), V(-9.75, -30, 0)),
    Part.LineSegment(V(-9.75, -30, 0), V(9.75, -30, 0)),
    Part.LineSegment(V(9.75, -30, 0), V(9.75, 5, 0)),
    Part.LineSegment(V(9.75, 5, 0), V(-9.75, 5, 0)),
], False)
sketch8.addConstraint([
    Sketcher.Constraint("Coincident", 0, 2, 1, 1),
    Sketcher.Constraint("Coincident", 1, 2, 2, 1),
    Sketcher.Constraint("Coincident", 2, 2, 3, 1),
    Sketcher.Constraint("Coincident", 3, 2, 0, 1),
    Sketcher.Constraint("Vertical", 0),
    Sketcher.Constraint("Horizontal", 1),
    Sketcher.Constraint("Vertical", 2),
    Sketcher.Constraint("Horizontal", 3),
    Sketcher.Constraint("DistanceY", 0, 2, 0, 1, Q("35 mm")),
    Sketcher.Constraint("DistanceX", 1, 1, 1, 2, Q("19.5 mm")),
    Sketcher.Constraint("DistanceY", 0, 2, -1, 1, Q("30 mm")),
    Sketcher.Constraint("DistanceX", 0, 2, -1, 1, Q("9.75 mm")),
])
pocket5 = body.newObject("PartDesign::Pocket", "Pocket004")
pocket5.Profile = sketch8
pocket5.Length = 4
pocket5.Reversed = True

# Sketch on XY plane
sketch9 = body.newObject("Sketcher::SketchObject", "Sketch008")
sketch9.AttachmentSupport = (doc.getObject("XY_Plane"), [""])
sketch9.MapMode = "FlatFace"
sketch9.addGeometry([
    Part.LineSegment(V(7.62, -50, 0), V(14, -50, 0)),  # 0
    Part.ArcOfCircle(Part.Circle(V(14, -48, 0), V(0, 0, 1), 2), math.radians(-90), math.radians(0)),  # 1
    Part.LineSegment(V(16, -48, 0), V(16, -38, 0)),  # 2
    Part.ArcOfCircle(Part.Circle(V(14, -38, 0), V(0, 0, 1), 2), math.radians(-90), math.radians(0)),  # 3
    Part.LineSegment(V(14, -40, 0), V(-14, -40, 0)),  # 4
    Part.ArcOfCircle(Part.Circle(V(-14, -38, 0), V(0, 0, 1), 2), math.radians(-180), math.radians(-90)),  # 5
    Part.LineSegment(V(-16, -38, 0), V(-16, -48, 0)),  # 6
    Part.ArcOfCircle(Part.Circle(V(-14, -48, 0), V(0, 0, 1), 2), math.radians(-180), math.radians(-90)),  # 7
    Part.LineSegment(V(-14, -50, 0), V(-7.62, -50, 0)),  # 8
    Part.LineSegment(V(-7.62, -50, 0), V(-7.62, -59.42, 0)),  # 9
    Part.ArcOfCircle(Part.Circle(V(-6.12, -59.42, 0), V(0, 0, 1), 1.5), math.radians(180), math.radians(270)),  # 10
    Part.LineSegment(V(-6.12, -60.92, 0), V(6.12, -60.92, 0)),  # 11
    Part.ArcOfCircle(Part.Circle(V(6.12, -59.42, 0), V(0, 0, 1), 1.5), math.radians(-90), math.radians(0)),  # 12
    Part.LineSegment(V(7.62, -59.42, 0), V(7.62, -50, 0)),  # 13
], False)
sketch9.addConstraint([
    Sketcher.Constraint("Tangent", 0, 2, 1, 1),
    Sketcher.Constraint("Tangent", 1, 2, 2, 1),
    Sketcher.Constraint("Tangent", 2, 2, 3, 2),
    Sketcher.Constraint("Tangent", 3, 1, 4, 1),
    Sketcher.Constraint("Tangent", 4, 2, 5, 2),
    Sketcher.Constraint("Tangent", 5, 1, 6, 1),
    Sketcher.Constraint("Tangent", 6, 2, 7, 1),
    Sketcher.Constraint("Tangent", 7, 2, 8, 1),
    Sketcher.Constraint("Coincident", 8, 2, 9, 1),
    Sketcher.Constraint("Tangent", 9, 2, 10, 1),
    Sketcher.Constraint("Tangent", 10, 2, 11, 1),
    Sketcher.Constraint("Tangent", 11, 2, 12, 1),
    Sketcher.Constraint("Tangent", 12, 2, 13, 1),
    Sketcher.Constraint("Coincident", 13, 2, 0, 1),
    Sketcher.Constraint("Horizontal", 0),
    Sketcher.Constraint("Vertical", 2),
    Sketcher.Constraint("Horizontal", 4),
    Sketcher.Constraint("Vertical", 6),
    Sketcher.Constraint("Horizontal", 8),
    Sketcher.Constraint("Vertical", 9),
    Sketcher.Constraint("Horizontal", 11),
    Sketcher.Constraint("Vertical", 13),
    Sketcher.Constraint("Equal", 1, 3),
    Sketcher.Constraint("Equal", 3, 5),
    Sketcher.Constraint("Equal", 5, 7),
    Sketcher.Constraint("Equal", 10, 12),
    Sketcher.Constraint("Symmetric", 1, 3, 7, 3, -2),
    Sketcher.Constraint("Equal", 0, 8),
    Sketcher.Constraint("Radius", 1, Q("2 mm")),
    Sketcher.Constraint("Radius", 10, Q("1.5 mm")),
    Sketcher.Constraint("DistanceX", 4, 2, 4, 1, Q("28 mm")),
    Sketcher.Constraint("DistanceY", 2, 1, 2, 2, Q("10 mm")),
    Sketcher.Constraint("DistanceY", 1, 3, -1, 1, Q("48 mm")),
    Sketcher.Constraint("DistanceX", 0, 1, 0, 2, Q("6.38 mm")),
    Sketcher.Constraint("DistanceY", 9, 2, 9, 1, Q("9.42 mm")),
])
pocket6 = body.newObject("PartDesign::Pocket", "Pocket005")
pocket6.Profile = sketch9
pocket6.Length = 1.6
pocket6.Reversed = True

doc.recompute()
